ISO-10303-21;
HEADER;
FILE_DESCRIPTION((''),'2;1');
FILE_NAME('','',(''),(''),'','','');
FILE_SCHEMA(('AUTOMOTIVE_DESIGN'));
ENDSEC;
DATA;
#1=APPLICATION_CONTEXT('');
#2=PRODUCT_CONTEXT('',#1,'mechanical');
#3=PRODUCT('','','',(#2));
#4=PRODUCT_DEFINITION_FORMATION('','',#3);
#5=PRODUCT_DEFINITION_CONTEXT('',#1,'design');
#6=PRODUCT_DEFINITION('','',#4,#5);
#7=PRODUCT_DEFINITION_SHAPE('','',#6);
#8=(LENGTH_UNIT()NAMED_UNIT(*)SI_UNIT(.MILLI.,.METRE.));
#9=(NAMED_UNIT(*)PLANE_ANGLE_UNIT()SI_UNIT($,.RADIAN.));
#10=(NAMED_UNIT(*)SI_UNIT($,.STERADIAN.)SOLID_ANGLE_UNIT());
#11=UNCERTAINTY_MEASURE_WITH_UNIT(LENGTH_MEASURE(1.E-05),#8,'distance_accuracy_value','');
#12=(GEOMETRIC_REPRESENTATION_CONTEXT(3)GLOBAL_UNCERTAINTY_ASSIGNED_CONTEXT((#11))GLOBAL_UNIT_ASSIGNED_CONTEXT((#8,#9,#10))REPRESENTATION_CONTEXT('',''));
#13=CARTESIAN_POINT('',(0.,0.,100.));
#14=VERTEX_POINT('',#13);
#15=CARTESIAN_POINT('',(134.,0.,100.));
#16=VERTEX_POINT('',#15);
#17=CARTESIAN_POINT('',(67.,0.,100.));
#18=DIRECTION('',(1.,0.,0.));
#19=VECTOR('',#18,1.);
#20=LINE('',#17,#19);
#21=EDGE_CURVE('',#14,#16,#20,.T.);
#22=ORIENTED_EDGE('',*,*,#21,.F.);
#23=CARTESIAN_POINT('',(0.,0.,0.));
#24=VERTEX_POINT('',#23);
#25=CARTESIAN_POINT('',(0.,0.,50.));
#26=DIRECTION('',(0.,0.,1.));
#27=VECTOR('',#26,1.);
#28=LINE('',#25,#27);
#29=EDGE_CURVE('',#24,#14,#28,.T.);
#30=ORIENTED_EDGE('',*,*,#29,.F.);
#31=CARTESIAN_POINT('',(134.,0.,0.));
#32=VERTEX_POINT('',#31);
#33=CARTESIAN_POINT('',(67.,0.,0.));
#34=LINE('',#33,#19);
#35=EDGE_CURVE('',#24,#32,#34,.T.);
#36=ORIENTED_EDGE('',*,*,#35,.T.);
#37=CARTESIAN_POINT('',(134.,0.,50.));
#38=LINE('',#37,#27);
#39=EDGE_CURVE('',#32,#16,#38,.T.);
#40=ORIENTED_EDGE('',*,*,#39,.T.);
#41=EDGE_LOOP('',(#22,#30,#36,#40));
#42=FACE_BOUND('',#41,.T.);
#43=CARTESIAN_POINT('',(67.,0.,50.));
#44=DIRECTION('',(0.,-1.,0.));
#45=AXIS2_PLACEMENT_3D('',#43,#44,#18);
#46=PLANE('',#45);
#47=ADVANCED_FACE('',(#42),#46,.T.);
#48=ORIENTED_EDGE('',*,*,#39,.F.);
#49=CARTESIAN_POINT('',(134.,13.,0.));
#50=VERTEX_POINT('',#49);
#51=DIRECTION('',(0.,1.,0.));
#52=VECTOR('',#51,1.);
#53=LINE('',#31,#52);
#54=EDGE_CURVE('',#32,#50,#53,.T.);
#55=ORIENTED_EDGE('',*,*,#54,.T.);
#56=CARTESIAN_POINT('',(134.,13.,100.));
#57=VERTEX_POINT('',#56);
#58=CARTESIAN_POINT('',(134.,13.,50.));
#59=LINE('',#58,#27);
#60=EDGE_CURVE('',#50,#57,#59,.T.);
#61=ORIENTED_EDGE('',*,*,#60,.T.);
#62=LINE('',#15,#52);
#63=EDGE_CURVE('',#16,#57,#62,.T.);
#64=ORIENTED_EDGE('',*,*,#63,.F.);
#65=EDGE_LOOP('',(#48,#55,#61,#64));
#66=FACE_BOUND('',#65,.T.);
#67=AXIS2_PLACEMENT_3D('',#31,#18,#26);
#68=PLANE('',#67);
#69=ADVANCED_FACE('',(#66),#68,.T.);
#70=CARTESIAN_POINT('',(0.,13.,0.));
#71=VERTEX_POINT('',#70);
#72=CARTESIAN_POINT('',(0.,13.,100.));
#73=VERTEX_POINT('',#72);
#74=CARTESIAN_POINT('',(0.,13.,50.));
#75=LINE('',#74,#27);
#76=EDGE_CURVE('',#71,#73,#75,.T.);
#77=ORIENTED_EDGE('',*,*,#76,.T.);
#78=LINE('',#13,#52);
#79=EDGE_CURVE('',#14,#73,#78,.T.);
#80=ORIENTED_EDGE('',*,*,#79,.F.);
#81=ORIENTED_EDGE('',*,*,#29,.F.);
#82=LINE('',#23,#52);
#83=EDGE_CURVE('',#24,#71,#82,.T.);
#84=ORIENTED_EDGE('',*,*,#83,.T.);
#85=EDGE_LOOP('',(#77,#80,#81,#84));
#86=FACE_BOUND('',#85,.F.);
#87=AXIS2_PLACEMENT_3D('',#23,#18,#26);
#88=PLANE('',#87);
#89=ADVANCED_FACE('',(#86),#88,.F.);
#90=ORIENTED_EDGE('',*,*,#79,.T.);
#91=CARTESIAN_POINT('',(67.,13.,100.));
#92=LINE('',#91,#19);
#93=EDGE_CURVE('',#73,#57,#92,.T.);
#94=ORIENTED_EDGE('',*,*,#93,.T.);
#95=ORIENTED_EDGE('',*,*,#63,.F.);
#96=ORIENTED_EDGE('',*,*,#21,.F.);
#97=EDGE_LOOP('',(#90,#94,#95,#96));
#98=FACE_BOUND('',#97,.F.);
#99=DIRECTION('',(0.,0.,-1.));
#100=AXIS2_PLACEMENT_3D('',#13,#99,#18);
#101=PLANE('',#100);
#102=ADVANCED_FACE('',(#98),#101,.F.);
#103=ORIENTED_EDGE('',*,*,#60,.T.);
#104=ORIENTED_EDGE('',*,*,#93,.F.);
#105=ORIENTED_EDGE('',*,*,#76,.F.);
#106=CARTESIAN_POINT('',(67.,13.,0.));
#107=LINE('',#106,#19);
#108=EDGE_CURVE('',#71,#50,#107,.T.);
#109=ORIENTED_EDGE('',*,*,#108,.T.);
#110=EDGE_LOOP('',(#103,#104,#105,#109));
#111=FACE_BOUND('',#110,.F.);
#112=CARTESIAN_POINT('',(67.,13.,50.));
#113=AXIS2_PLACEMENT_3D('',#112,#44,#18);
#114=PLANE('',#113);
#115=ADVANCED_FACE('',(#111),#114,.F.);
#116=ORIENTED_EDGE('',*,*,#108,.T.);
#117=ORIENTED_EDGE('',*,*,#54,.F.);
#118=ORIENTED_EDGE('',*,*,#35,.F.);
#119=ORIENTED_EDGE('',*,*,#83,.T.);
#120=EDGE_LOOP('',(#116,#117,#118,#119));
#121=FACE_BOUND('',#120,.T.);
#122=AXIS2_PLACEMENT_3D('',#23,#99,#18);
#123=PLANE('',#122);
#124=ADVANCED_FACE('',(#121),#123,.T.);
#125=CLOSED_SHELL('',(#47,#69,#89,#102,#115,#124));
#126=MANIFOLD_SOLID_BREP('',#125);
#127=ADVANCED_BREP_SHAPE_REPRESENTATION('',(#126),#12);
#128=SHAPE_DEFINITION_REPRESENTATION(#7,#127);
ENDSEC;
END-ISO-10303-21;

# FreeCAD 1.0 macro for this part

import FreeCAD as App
import Part
import Sketcher

V = App.Vector

doc = App.newDocument("Part")
body = doc.addObject("PartDesign::Body", "Body")

# Sketch on XZ plane
sketch1 = body.newObject("Sketcher::SketchObject", "Sketch")
sketch1.AttachmentSupport = (doc.getObject("XZ_Plane"), [""])
sketch1.MapMode = "FlatFace"
sketch1.addGeometry(Part.LineSegment(V(0, 100, 0), V(0, 0, 0)), False)
sketch1.addGeometry(Part.LineSegment(V(0, 0, 0), V(134, 0, 0)), False)
sketch1.addGeometry(Part.LineSegment(V(134, 0, 0), V(134, 100, 0)), False)
sketch1.addGeometry(Part.LineSegment(V(134, 100, 0), V(0, 100, 0)), False)
sketch1.addConstraint(Sketcher.Constraint("Coincident", 0, 2, 1, 1))
sketch1.addConstraint(Sketcher.Constraint("Coincident", 1, 2, 2, 1))
sketch1.addConstraint(Sketcher.Constraint("Coincident", 2, 2, 3, 1))
sketch1.addConstraint(Sketcher.Constraint("Coincident", 3, 2, 0, 1))
sketch1.addConstraint(Sketcher.Constraint("Vertical", 0))
sketch1.addConstraint(Sketcher.Constraint("Horizontal", 1))
sketch1.addConstraint(Sketcher.Constraint("Vertical", 2))
sketch1.addConstraint(Sketcher.Constraint("Horizontal", 3))
sketch1.addConstraint(Sketcher.Constraint("Coincident", 0, 2, -1, 1))
sketch1.addConstraint(Sketcher.Constraint("DistanceX", 1, 1, 1, 2, 134.0))
sketch1.addConstraint(Sketcher.Constraint("DistanceY", 0, 2, 0, 1, 100.0))
pad1 = body.newObject("PartDesign::Pad", "Pad")
pad1.Profile = sketch1
pad1.Length = 13
pad1.Reversed = True

doc.recompute()
